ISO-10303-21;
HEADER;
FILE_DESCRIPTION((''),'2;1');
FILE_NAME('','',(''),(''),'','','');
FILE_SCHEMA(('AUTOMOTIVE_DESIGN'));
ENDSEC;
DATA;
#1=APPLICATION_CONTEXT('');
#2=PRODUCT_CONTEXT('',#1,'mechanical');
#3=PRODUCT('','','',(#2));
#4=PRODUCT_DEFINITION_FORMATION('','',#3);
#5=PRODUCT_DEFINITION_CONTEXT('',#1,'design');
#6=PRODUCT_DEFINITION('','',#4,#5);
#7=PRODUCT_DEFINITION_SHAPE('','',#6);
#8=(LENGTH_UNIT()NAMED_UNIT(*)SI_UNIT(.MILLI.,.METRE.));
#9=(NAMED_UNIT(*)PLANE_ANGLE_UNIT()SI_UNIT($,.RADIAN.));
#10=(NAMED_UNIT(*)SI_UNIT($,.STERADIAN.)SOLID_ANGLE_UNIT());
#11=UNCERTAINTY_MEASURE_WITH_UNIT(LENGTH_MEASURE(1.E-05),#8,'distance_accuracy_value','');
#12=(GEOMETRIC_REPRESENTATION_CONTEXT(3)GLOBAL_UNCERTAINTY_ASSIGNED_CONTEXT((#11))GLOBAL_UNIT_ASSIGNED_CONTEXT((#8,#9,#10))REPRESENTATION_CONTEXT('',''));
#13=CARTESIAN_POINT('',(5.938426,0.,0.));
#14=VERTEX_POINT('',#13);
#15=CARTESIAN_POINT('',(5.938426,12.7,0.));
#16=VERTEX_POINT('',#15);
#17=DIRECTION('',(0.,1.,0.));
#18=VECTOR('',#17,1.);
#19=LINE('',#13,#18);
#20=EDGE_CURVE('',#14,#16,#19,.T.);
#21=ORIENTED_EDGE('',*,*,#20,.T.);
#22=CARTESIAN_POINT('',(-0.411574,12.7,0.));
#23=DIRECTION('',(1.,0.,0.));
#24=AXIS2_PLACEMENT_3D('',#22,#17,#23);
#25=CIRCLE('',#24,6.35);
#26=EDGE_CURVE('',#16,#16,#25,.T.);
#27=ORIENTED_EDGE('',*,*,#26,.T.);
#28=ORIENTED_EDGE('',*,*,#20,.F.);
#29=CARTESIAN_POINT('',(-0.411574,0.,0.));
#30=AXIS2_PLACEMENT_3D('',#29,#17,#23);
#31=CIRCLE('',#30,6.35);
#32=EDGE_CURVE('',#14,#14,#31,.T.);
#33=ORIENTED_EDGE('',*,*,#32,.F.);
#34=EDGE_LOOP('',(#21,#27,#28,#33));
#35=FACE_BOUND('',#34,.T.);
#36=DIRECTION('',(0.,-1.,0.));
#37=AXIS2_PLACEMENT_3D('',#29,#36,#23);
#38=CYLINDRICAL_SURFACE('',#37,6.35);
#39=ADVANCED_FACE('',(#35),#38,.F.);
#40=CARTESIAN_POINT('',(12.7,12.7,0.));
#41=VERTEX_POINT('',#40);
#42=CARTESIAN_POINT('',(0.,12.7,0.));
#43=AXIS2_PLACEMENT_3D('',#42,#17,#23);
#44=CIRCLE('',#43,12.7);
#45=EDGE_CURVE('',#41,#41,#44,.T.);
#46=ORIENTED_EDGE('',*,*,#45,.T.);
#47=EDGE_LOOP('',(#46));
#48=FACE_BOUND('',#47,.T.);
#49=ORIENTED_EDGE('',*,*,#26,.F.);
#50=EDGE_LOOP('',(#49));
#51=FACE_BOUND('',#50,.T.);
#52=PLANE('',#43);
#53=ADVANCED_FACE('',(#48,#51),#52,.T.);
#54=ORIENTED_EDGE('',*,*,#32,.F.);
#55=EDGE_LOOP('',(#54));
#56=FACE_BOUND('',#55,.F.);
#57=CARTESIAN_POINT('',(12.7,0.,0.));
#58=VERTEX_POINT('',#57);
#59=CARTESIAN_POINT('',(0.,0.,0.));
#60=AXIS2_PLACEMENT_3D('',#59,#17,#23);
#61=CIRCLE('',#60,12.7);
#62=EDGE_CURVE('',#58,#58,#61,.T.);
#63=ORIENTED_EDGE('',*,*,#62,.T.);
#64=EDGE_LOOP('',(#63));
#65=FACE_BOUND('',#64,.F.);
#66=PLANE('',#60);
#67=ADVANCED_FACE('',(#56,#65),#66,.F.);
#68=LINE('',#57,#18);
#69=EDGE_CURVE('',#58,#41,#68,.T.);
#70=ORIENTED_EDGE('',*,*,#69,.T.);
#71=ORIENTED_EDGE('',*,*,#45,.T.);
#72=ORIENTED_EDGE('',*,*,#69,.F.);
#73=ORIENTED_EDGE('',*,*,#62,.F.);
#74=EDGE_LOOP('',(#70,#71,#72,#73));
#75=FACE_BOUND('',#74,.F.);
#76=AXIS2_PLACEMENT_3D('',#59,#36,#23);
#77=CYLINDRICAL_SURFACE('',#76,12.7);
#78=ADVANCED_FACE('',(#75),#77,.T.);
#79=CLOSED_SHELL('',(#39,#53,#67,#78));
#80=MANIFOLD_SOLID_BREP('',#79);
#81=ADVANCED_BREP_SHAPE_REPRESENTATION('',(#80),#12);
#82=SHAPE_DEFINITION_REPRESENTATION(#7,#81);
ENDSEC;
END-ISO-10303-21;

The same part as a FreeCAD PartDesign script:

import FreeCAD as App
import Part
import Sketcher

V = App.Vector
Q = App.Units.Quantity

doc = App.newDocument("Part")
body = doc.addObject("PartDesign::Body", "Body")

sketch1 = body.newObject("Sketcher::SketchObject", "Sketch")
sketch1.AttachmentSupport = (doc.getObject("XZ_Plane"), [""])
sketch1.MapMode = "FlatFace"
sketch1.addGeometry(Part.Circle(V(0, 0, 0), V(0, 0, 1), 13), False)
sketch1.addGeometry(Part.Circle(V(0, 0, 0), V(0, 0, 1), 6), False)
sketch1.addConstraint(Sketcher.Constraint("Coincident", 0, 3, -1, 1))
sketch1.addConstraint(Sketcher.Constraint("PointOnObject", 1, 3, -1))
sketch1.addConstraint(Sketcher.Constraint("Diameter", 0, Q("1 in")))
sketch1.addConstraint(Sketcher.Constraint("Diameter", 1, Q("0.5 in")))
sketch1.addConstraint(Sketcher.Constraint("DistanceX", 1, 3, -1, 1, Q("0.411574 mm")))
pad1 = body.newObject("PartDesign::Pad", "Pad")
pad1.Profile = sketch1
pad1.Length = Q("0.5 in")
pad1.Reversed = True

doc.recompute()
